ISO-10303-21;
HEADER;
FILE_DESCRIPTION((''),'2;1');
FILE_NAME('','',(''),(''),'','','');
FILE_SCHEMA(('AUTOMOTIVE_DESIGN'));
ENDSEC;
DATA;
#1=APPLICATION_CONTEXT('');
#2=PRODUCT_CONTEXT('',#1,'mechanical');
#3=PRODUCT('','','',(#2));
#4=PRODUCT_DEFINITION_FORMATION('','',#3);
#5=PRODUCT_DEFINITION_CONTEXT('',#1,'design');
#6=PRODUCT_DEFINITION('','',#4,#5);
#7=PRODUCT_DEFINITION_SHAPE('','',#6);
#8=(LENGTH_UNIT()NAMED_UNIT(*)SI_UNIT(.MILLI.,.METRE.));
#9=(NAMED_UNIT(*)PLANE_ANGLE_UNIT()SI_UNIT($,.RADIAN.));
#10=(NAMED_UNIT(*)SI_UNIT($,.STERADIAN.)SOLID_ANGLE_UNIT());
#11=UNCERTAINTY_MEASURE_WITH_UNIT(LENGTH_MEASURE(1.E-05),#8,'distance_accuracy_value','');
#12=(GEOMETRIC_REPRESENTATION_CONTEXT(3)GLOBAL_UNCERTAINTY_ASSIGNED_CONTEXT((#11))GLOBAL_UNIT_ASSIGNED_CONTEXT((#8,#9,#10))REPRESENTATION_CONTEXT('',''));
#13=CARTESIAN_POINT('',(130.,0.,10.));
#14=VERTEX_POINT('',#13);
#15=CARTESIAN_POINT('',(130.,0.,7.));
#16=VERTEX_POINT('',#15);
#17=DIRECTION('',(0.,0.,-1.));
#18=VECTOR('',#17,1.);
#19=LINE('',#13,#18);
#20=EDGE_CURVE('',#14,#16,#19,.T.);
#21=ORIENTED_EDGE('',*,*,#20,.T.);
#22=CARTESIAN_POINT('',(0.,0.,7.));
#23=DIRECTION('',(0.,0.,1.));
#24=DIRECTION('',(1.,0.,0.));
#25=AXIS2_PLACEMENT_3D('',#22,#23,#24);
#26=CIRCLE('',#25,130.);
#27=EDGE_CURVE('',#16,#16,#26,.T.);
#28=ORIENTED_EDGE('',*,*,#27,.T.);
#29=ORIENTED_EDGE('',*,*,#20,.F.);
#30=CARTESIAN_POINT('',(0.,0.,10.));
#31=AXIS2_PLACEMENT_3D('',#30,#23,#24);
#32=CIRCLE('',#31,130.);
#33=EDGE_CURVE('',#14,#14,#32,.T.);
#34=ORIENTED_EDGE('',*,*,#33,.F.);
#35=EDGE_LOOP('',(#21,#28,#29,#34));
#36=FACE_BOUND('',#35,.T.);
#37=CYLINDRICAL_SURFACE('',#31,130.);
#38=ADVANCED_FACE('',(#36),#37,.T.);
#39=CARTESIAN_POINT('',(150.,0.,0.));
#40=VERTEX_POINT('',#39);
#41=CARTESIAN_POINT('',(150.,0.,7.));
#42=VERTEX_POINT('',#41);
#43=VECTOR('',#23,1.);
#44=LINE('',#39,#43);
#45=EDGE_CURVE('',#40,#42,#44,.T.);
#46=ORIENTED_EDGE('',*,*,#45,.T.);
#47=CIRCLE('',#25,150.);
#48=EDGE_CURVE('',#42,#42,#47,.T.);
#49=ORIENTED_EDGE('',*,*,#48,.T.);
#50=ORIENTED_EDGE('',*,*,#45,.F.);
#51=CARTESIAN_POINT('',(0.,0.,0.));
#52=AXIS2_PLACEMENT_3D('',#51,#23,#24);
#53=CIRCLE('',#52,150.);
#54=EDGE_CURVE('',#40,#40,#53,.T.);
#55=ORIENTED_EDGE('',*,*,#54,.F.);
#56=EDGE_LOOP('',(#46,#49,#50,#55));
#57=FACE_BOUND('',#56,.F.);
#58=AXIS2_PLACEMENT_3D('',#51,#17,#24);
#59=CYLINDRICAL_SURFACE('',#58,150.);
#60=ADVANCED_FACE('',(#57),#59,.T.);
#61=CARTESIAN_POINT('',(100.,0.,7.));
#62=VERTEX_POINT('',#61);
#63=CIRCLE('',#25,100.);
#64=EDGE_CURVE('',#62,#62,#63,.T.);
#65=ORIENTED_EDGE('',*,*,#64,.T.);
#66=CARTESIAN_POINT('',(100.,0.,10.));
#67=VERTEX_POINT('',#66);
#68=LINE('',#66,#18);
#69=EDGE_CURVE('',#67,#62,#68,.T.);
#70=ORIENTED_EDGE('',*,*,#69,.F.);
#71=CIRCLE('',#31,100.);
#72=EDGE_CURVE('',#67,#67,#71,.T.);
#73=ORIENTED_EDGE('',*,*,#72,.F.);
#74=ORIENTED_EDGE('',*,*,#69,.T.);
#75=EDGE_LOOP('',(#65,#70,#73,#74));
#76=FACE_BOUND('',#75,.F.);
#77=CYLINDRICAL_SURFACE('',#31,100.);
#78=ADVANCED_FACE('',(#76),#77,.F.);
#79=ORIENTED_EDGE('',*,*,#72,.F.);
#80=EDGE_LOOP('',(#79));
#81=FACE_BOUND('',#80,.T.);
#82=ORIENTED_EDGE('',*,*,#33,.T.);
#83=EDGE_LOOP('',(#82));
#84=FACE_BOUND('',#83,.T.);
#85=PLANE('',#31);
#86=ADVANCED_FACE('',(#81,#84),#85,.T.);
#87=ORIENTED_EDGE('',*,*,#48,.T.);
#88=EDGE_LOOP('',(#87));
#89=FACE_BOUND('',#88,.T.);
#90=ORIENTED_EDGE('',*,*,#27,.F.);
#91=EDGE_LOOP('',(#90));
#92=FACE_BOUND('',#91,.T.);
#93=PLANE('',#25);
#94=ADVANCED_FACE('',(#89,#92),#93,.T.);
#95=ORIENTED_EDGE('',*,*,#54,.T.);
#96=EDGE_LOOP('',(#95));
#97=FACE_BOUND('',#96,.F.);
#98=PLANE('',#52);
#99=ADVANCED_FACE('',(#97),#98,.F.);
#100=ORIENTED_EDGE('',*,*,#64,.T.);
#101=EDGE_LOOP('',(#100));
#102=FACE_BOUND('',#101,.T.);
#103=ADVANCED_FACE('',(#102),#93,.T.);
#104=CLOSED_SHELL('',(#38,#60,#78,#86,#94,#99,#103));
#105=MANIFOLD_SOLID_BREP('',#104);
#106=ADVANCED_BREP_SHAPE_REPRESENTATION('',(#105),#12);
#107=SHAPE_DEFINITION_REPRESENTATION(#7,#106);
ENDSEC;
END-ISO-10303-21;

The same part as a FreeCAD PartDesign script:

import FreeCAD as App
import Part
import Sketcher

doc = App.newDocument("Part")
body = doc.addObject("PartDesign::Body", "Body")

sketch1 = doc.addObject("Sketcher::SketchObject", "Sketch")
body.addObject(sketch1)
sketch1.AttachmentSupport = (doc.XY_Plane, [""])
sketch1.MapMode = "FlatFace"
sketch1.addGeometry(Part.Circle(App.Vector(0, 0, 0), App.Vector(0, 0, 1), 150), False)
sketch1.addConstraint(Sketcher.Constraint("Coincident", 0, 3, -1, 1))
sketch1.addConstraint(Sketcher.Constraint("Diameter", 0, 300.0))
pad1 = doc.addObject("PartDesign::Pad", "Pad")
body.addObject(pad1)
pad1.Profile = sketch1
pad1.Length = 10

sketch2 = doc.addObject("Sketcher::SketchObject", "Sketch001")
body.addObject(sketch2)
sketch2.AttachmentSupport = (doc.XY_Plane, [""])
sketch2.MapMode = "FlatFace"
sketch2.AttachmentOffset = App.Placement(App.Vector(0, 0, 10), App.Rotation())
sketch2.addGeometry(Part.Circle(App.Vector(0, 0, 0), App.Vector(0, 0, 1), 150), False)
sketch2.addGeometry(Part.Circle(App.Vector(0, 0, 0), App.Vector(0, 0, 1), 130), False)
sketch2.addGeometry(Part.Circle(App.Vector(0, 0, 0), App.Vector(0, 0, 1), 100), False)
sketch2.addConstraint(Sketcher.Constraint("Coincident", 0, 3, -1, 1))
sketch2.addConstraint(Sketcher.Constraint("Coincident", 1, 3, -1, 1))
sketch2.addConstraint(Sketcher.Constraint("Coincident", 2, 3, -1, 1))
sketch2.addConstraint(Sketcher.Constraint("Diameter", 0, 300.0))
sketch2.addConstraint(Sketcher.Constraint("Diameter", 1, 260.0))
sketch2.addConstraint(Sketcher.Constraint("Diameter", 2, 200.0))
pocket1 = doc.addObject("PartDesign::Pocket", "Pocket")
body.addObject(pocket1)
pocket1.Profile = sketch2
pocket1.Length = 3

doc.recompute()
